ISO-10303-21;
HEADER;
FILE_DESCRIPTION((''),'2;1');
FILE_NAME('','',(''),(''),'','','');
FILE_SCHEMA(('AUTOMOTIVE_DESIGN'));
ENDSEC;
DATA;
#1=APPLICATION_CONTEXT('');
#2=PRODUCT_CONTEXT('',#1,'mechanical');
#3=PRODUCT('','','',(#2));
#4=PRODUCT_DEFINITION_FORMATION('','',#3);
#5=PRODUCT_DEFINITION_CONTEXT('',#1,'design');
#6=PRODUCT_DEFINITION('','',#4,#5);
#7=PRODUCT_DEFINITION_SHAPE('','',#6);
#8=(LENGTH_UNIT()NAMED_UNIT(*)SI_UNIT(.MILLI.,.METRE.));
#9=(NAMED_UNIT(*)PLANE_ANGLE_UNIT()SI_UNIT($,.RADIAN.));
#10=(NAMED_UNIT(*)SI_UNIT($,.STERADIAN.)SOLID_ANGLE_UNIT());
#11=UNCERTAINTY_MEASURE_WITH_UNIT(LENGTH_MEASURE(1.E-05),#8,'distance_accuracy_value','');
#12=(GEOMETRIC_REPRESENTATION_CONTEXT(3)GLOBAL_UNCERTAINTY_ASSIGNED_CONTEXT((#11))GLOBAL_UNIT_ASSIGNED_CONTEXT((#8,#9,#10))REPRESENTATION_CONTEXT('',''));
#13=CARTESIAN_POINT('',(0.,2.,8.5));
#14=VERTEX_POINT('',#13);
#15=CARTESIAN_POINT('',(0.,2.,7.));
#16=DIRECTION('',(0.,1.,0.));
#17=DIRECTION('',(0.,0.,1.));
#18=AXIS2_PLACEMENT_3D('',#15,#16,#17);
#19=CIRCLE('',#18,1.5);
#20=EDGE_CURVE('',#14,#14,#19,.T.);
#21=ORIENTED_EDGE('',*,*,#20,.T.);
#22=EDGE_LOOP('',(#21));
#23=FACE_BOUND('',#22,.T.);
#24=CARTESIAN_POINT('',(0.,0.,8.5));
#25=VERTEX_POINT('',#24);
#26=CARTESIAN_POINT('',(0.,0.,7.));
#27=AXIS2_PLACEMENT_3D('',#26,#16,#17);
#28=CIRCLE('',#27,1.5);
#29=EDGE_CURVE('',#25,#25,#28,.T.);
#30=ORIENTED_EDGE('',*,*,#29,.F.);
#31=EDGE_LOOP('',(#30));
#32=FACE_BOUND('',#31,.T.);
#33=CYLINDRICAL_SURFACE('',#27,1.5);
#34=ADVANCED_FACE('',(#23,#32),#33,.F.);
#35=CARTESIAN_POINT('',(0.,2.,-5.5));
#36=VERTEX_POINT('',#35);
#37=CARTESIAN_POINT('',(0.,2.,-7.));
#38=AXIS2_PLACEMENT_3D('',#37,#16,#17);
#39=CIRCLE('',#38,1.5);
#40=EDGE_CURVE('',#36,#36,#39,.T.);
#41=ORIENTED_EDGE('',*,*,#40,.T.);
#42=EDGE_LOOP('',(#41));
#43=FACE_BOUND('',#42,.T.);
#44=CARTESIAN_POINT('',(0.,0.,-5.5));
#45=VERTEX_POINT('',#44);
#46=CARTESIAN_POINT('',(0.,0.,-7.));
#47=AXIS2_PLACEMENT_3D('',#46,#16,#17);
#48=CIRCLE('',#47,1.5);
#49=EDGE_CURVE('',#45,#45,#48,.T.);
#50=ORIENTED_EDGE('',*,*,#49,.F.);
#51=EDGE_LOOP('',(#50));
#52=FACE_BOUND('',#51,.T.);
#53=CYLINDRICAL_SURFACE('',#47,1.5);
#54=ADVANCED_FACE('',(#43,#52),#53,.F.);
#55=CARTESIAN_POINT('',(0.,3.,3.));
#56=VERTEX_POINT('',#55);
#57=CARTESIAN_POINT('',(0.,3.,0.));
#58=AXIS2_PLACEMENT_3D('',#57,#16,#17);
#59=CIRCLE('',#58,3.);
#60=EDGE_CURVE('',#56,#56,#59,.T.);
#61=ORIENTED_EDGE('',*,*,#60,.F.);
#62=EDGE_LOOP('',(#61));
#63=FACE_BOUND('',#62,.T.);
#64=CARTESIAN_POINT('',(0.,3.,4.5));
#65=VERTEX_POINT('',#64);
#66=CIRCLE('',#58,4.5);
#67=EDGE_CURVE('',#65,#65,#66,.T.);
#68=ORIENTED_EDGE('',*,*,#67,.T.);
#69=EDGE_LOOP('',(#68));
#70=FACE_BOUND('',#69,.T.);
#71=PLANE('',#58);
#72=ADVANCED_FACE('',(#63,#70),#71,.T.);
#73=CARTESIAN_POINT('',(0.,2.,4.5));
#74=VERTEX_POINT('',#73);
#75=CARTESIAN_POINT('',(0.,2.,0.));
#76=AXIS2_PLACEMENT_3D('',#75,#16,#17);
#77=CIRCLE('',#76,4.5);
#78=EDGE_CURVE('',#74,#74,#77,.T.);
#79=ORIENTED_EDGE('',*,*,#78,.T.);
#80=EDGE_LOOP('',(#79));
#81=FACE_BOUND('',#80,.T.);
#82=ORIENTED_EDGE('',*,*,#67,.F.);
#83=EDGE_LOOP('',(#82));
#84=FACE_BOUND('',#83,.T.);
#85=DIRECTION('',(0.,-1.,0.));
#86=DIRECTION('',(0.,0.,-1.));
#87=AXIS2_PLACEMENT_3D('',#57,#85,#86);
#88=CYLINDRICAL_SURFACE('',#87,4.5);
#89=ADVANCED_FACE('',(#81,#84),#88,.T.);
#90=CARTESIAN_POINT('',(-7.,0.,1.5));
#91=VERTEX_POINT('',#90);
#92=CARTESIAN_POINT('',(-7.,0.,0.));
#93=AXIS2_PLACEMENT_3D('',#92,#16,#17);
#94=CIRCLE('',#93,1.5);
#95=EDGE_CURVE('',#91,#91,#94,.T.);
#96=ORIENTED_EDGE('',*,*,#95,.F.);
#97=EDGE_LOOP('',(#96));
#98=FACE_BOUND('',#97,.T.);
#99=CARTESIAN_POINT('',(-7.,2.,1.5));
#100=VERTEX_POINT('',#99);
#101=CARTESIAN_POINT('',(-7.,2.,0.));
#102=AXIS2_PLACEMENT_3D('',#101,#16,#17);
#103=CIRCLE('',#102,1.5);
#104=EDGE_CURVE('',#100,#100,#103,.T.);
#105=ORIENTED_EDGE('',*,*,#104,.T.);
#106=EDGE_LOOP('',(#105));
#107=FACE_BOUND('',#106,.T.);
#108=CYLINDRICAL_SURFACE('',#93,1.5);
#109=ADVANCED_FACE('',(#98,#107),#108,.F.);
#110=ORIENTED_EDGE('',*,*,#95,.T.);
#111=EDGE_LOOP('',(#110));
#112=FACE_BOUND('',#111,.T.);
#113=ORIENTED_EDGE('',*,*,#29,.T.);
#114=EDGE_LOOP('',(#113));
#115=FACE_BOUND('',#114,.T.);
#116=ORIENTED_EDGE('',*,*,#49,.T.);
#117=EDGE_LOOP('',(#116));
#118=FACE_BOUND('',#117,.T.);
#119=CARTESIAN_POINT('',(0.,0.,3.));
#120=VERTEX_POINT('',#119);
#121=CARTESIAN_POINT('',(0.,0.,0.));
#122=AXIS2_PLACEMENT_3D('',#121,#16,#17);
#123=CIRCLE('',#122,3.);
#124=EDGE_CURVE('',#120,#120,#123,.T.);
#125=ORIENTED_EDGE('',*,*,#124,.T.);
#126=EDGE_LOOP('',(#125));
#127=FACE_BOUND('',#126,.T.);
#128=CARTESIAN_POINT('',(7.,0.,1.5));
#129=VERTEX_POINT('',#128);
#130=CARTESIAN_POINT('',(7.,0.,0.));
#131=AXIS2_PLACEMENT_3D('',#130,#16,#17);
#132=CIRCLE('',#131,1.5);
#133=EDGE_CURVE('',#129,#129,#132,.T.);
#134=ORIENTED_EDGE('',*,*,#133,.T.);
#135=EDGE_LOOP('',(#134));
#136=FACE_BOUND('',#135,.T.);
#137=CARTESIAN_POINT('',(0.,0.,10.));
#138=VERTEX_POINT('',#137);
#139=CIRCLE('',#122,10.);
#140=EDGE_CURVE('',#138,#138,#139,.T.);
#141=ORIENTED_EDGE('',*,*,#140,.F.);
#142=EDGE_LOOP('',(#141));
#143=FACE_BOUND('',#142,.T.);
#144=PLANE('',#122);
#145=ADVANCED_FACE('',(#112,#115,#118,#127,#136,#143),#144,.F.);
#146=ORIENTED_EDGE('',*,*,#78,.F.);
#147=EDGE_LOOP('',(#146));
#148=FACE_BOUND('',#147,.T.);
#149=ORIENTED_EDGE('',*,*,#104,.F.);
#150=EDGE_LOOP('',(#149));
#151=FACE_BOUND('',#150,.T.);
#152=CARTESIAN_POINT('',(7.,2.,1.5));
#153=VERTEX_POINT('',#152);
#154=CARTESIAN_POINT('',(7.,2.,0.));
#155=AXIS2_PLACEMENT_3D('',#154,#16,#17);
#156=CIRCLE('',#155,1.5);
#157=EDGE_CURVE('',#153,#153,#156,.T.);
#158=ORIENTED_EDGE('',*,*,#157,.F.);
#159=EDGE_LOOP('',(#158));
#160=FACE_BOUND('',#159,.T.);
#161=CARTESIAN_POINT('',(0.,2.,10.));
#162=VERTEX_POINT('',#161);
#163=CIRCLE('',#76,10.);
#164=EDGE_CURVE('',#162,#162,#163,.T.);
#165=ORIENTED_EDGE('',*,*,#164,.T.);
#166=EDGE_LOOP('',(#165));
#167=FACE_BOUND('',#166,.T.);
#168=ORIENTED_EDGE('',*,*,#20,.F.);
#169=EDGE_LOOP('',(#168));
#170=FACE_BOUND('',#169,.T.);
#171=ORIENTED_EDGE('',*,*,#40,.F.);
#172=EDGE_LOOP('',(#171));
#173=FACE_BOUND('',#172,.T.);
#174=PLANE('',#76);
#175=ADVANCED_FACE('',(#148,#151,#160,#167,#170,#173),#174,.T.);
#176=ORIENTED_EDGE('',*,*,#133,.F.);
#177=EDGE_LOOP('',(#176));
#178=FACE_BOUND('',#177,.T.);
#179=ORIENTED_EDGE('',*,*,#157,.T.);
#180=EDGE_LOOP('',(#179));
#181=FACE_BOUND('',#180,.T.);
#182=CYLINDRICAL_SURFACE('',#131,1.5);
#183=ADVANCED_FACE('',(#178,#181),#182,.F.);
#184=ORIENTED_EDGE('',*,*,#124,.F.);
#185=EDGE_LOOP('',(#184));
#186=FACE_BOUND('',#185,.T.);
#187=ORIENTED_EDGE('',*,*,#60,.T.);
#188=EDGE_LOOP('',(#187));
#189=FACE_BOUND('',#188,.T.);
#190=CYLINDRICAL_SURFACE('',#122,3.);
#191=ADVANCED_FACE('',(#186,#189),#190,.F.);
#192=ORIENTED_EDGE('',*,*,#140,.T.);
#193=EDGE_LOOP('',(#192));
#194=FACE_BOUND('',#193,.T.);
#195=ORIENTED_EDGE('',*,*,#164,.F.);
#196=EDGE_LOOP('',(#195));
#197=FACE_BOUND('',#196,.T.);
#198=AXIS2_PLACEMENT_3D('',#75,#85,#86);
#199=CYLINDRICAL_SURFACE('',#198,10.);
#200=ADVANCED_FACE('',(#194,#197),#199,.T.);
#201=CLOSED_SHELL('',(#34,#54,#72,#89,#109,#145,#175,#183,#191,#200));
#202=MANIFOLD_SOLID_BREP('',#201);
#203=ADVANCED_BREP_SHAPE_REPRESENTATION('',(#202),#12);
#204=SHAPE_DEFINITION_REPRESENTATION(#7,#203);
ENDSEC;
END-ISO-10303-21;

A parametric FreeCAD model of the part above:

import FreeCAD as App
import Part
import Sketcher

V = App.Vector

doc = App.newDocument("Part")
body = doc.addObject("PartDesign::Body", "Body")

sketch1 = body.newObject("Sketcher::SketchObject", "Sketch")
sketch1.AttachmentSupport = (doc.getObject("XZ_Plane"), [""])
sketch1.MapMode = "FlatFace"
sketch1.addGeometry(Part.Circle(V(0, 0, 0), V(0, 0, 1), 10), False)
sketch1.addConstraint([
    Sketcher.Constraint("Coincident", 0, 3, -1, 1),
    Sketcher.Constraint("Diameter", 0, 20.0),
])
pad1 = body.newObject("PartDesign::Pad", "Pad")
pad1.Profile = sketch1
pad1.Length = 2
pad1.Reversed = True

sketch2 = body.newObject("Sketcher::SketchObject", "Sketch001")
sketch2.AttachmentSupport = (doc.getObject("XZ_Plane"), [""])
sketch2.MapMode = "FlatFace"
sketch2.AttachmentOffset = App.Placement(V(0, 0, -2), App.Rotation())
sketch2.addGeometry([
    Part.Circle(V(0, 0, 0), V(0, 0, 1), 3),
    Part.Circle(V(0, -7, 0), V(0, 0, 1), 1.5),
    Part.Circle(V(7, 0, 0), V(0, 0, 1), 1.5),
    Part.Circle(V(0, 7, 0), V(0, 0, 1), 1.5),
    Part.Circle(V(-7, 0, 0), V(0, 0, 1), 1.5),
], False)
sketch2.addConstraint([
    Sketcher.Constraint("Coincident", 0, 3, -1, 1),
    Sketcher.Constraint("Equal", 1, 2),
    Sketcher.Constraint("Equal", 2, 3),
    Sketcher.Constraint("Equal", 3, 4),
    Sketcher.Constraint("Symmetric", 1, 3, 3, 3, -1, 1),
    Sketcher.Constraint("Symmetric", 2, 3, 4, 3, -1, 1),
    Sketcher.Constraint("PointOnObject", 1, 3, -2),
    Sketcher.Constraint("PointOnObject", 2, 3, -1),
    Sketcher.Constraint("Diameter", 0, 6.0),
    Sketcher.Constraint("Diameter", 1, 3.0),
    Sketcher.Constraint("DistanceY", 1, 3, -1, 1, 7.0),
    Sketcher.Constraint("DistanceX", -1, 1, 2, 3, 7.0),
])
pocket1 = body.newObject("PartDesign::Pocket", "Pocket")
pocket1.Profile = sketch2
pocket1.Length = 2
pocket1.Reversed = True

sketch3 = body.newObject("Sketcher::SketchObject", "Sketch002")
sketch3.AttachmentSupport = (doc.getObject("XZ_Plane"), [""])
sketch3.MapMode = "FlatFace"
sketch3.AttachmentOffset = App.Placement(V(0, 0, -2), App.Rotation())
sketch3.addGeometry([
    Part.Circle(V(0, 0, 0), V(0, 0, 1), 4.5),
    Part.Circle(V(0, 0, 0), V(0, 0, 1), 3),
], False)
sketch3.addConstraint([
    Sketcher.Constraint("Coincident", 0, 3, -1, 1),
    Sketcher.Constraint("Coincident", 1, 3, -1, 1),
    Sketcher.Constraint("Diameter", 0, 9.0),
    Sketcher.Constraint("Diameter", 1, 6.0),
])
pad2 = body.newObject("PartDesign::Pad", "Pad001")
pad2.Profile = sketch3
pad2.Length = 1
pad2.Reversed = True

doc.recompute()
